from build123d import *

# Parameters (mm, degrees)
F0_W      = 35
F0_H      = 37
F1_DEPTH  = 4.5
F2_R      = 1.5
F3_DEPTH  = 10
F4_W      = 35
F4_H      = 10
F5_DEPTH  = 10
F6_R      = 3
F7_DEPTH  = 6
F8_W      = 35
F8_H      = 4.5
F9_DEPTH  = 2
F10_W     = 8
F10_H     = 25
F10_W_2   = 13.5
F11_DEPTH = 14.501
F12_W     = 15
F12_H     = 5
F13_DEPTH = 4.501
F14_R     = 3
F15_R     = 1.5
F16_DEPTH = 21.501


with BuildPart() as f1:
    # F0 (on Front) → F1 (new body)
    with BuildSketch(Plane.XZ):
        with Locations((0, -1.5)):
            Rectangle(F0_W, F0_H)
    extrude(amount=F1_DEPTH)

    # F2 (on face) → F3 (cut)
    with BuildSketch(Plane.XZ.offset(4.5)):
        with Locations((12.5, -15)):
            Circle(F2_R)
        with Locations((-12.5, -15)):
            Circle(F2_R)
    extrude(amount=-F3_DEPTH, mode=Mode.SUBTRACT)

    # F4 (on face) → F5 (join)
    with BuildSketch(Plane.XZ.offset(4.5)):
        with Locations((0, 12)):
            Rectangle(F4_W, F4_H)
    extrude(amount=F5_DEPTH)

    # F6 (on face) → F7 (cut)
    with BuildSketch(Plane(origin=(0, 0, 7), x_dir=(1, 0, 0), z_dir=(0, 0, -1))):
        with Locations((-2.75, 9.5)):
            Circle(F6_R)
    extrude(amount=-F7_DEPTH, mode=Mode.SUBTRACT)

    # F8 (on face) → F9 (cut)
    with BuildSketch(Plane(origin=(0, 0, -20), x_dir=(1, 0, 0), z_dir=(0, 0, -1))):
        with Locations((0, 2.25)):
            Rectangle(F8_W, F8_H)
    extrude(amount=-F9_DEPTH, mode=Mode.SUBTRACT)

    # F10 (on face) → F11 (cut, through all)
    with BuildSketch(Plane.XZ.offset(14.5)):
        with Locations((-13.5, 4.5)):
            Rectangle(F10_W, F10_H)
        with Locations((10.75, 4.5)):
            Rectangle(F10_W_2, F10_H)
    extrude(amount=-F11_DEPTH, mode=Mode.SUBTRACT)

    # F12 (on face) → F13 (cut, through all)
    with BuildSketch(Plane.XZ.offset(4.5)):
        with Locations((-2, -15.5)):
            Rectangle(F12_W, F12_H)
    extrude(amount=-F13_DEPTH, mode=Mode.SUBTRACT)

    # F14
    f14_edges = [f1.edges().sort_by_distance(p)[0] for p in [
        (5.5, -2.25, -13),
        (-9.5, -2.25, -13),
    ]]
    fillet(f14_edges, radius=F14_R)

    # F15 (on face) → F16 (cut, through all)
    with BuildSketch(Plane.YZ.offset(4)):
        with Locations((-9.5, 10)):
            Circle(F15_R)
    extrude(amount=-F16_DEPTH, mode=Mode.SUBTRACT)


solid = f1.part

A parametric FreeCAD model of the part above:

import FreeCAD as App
import Part
import Sketcher

V = App.Vector


def edges_at(feature, points):
    """Names of the edges that pass closest to the given points."""
    edges = feature.Shape.Edges
    near = lambda p: min(range(len(edges)), key=lambda i: edges[i].distToShape(Part.Vertex(*p))[0])
    return sorted({f"Edge{near(p) + 1}" for p in points})


def add_polygon(sketch, points):
    """Adds a closed chain of lines whose ends are joined by coincident constraints."""
    first, n = sketch.GeometryCount, len(points)
    for a, b in zip(points, points[1:] + points[:1]):
        sketch.addGeometry(Part.LineSegment(App.Vector(*a, 0), App.Vector(*b, 0)), False)
    for i in range(n):
        sketch.addConstraint(Sketcher.Constraint("Coincident", first + i, 2, first + (i + 1) % n, 1))

doc = App.newDocument("Part")
body = doc.addObject("PartDesign::Body", "Body")

# Sketch on XZ plane
sketch1 = body.newObject("Sketcher::SketchObject", "Sketch")
sketch1.AttachmentSupport = (doc.getObject("XZ_Plane"), [""])
sketch1.MapMode = "FlatFace"
add_polygon(sketch1, [(-18, 17), (-18, -20), (18, -20), (18, 17)])  # lines 0-3
sketch1.addConstraint(Sketcher.Constraint("Vertical", 0))
sketch1.addConstraint(Sketcher.Constraint("Horizontal", 1))
sketch1.addConstraint(Sketcher.Constraint("Vertical", 2))
sketch1.addConstraint(Sketcher.Constraint("Horizontal", 3))
sketch1.addConstraint(Sketcher.Constraint("DistanceX", 1, 1, 1, 2, 35.0))
sketch1.addConstraint(Sketcher.Constraint("DistanceY", 0, 2, 0, 1, 37.0))
sketch1.addConstraint(Sketcher.Constraint("DistanceY", 0, 2, -1, 1, 20.0))
sketch1.addConstraint(Sketcher.Constraint("DistanceX", 0, 2, -1, 1, 17.5))
pad1 = body.newObject("PartDesign::Pad", "Pad")
pad1.Profile = sketch1
pad1.Length = 4.5

# Sketch on XZ plane
sketch2 = body.newObject("Sketcher::SketchObject", "Sketch001")
sketch2.AttachmentSupport = (doc.getObject("XZ_Plane"), [""])
sketch2.MapMode = "FlatFace"
sketch2.AttachmentOffset = App.Placement(V(0, 0, 4.5), App.Rotation())
sketch2.addGeometry(Part.Circle(V(12.5, -15, 0), V(0, 0, 1), 1.5), False)
sketch2.addGeometry(Part.Circle(V(-12.5, -15, 0), V(0, 0, 1), 1.5), False)
sketch2.addConstraint(Sketcher.Constraint("Equal", 0, 1))
sketch2.addConstraint(Sketcher.Constraint("Symmetric", 0, 3, 1, 3, -2))
sketch2.addConstraint(Sketcher.Constraint("Diameter", 0, 3.0))
sketch2.addConstraint(Sketcher.Constraint("DistanceY", 0, 3, -1, 1, 15.0))
sketch2.addConstraint(Sketcher.Constraint("DistanceX", 1, 3, 0, 3, 25.0))
pocket1 = body.newObject("PartDesign::Pocket", "Pocket")
pocket1.Profile = sketch2
pocket1.Length = 10

# Sketch on XZ plane
sketch3 = body.newObject("Sketcher::SketchObject", "Sketch002")
sketch3.AttachmentSupport = (doc.getObject("XZ_Plane"), [""])
sketch3.MapMode = "FlatFace"
sketch3.AttachmentOffset = App.Placement(V(0, 0, 4.5), App.Rotation())
add_polygon(sketch3, [(-18, 17), (-18, 7), (18, 7), (18, 17)])  # lines 0-3
sketch3.addConstraint(Sketcher.Constraint("Vertical", 0))
sketch3.addConstraint(Sketcher.Constraint("Horizontal", 1))
sketch3.addConstraint(Sketcher.Constraint("Vertical", 2))
sketch3.addConstraint(Sketcher.Constraint("Horizontal", 3))
sketch3.addConstraint(Sketcher.Constraint("DistanceX", 1, 1, 1, 2, 35.0))
sketch3.addConstraint(Sketcher.Constraint("DistanceY", 0, 2, 0, 1, 10.0))
sketch3.addConstraint(Sketcher.Constraint("DistanceY", -1, 1, 0, 2, 7.0))
sketch3.addConstraint(Sketcher.Constraint("DistanceX", 0, 2, -1, 1, 17.5))
pad2 = body.newObject("PartDesign::Pad", "Pad001")
pad2.Profile = sketch3
pad2.Length = 10

# Sketch on XY plane
sketch4 = body.newObject("Sketcher::SketchObject", "Sketch003")
sketch4.AttachmentSupport = (doc.getObject("XY_Plane"), [""])
sketch4.MapMode = "FlatFace"
sketch4.AttachmentOffset = App.Placement(V(0, 0, 7), App.Rotation())
sketch4.addGeometry(Part.Circle(V(-2.8, -9.5, 0), V(0, 0, 1), 3), False)
sketch4.addConstraint(Sketcher.Constraint("Diameter", 0, 6.0))
sketch4.addConstraint(Sketcher.Constraint("DistanceY", 0, 3, -1, 1, 9.5))
sketch4.addConstraint(Sketcher.Constraint("DistanceX", 0, 3, -1, 1, 2.75))
pocket2 = body.newObject("PartDesign::Pocket", "Pocket001")
pocket2.Profile = sketch4
pocket2.Length = 6
pocket2.Reversed = True

# Sketch on XY plane
sketch5 = body.newObject("Sketcher::SketchObject", "Sketch004")
sketch5.AttachmentSupport = (doc.getObject("XY_Plane"), [""])
sketch5.MapMode = "FlatFace"
sketch5.AttachmentOffset = App.Placement(V(0, 0, -20), App.Rotation())
add_polygon(sketch5, [(-17.5, -4.5), (-17.5, 0), (17.5, 0), (17.5, -4.5)])  # lines 0-3
sketch5.addConstraint(Sketcher.Constraint("Vertical", 0))
sketch5.addConstraint(Sketcher.Constraint("Horizontal", 1))
sketch5.addConstraint(Sketcher.Constraint("Vertical", 2))
sketch5.addConstraint(Sketcher.Constraint("Horizontal", 3))
sketch5.addConstraint(Sketcher.Constraint("Symmetric", 0, 2, 1, 2, -1, 1))
sketch5.addConstraint(Sketcher.Constraint("DistanceX", 1, 1, 1, 2, 35.0))
sketch5.addConstraint(Sketcher.Constraint("DistanceY", 0, 1, 0, 2, 4.5))
pocket3 = body.newObject("PartDesign::Pocket", "Pocket002")
pocket3.Profile = sketch5
pocket3.Length = 2
pocket3.Reversed = True

# Sketch on XZ plane
sketch6 = body.newObject("Sketcher::SketchObject", "Sketch005")
sketch6.AttachmentSupport = (doc.getObject("XZ_Plane"), [""])
sketch6.MapMode = "FlatFace"
sketch6.AttachmentOffset = App.Placement(V(0, 0, 14.5), App.Rotation())
add_polygon(sketch6, [(-18, 17), (-18, -8), (-10, -8), (-10, 17)])  # lines 0-3
add_polygon(sketch6, [(4, 17), (4, -8), (18, -8), (18, 17)])  # lines 4-7
sketch6.addConstraint(Sketcher.Constraint("Vertical", 0))
sketch6.addConstraint(Sketcher.Constraint("Horizontal", 1))
sketch6.addConstraint(Sketcher.Constraint("Vertical", 2))
sketch6.addConstraint(Sketcher.Constraint("Horizontal", 3))
sketch6.addConstraint(Sketcher.Constraint("Vertical", 4))
sketch6.addConstraint(Sketcher.Constraint("Horizontal", 5))
sketch6.addConstraint(Sketcher.Constraint("Vertical", 6))
sketch6.addConstraint(Sketcher.Constraint("Horizontal", 7))
sketch6.addConstraint(Sketcher.Constraint("Symmetric", 0, 2, 5, 2, -2))
sketch6.addConstraint(Sketcher.Constraint("Horizontal", 3, 2, 6, 2))
sketch6.addConstraint(Sketcher.Constraint("DistanceX", 1, 1, 1, 2, 8.0))
sketch6.addConstraint(Sketcher.Constraint("DistanceY", 0, 2, 0, 1, 25.0))
sketch6.addConstraint(Sketcher.Constraint("DistanceX", 5, 1, 5, 2, 13.5))
sketch6.addConstraint(Sketcher.Constraint("DistanceY", 0, 2, -1, 1, 8.0))
sketch6.addConstraint(Sketcher.Constraint("DistanceX", -1, 1, 4, 2, 4.0))
pocket4 = body.newObject("PartDesign::Pocket", "Pocket003")
pocket4.Profile = sketch6
pocket4.Type = "ThroughAll"

# Sketch on XZ plane
sketch7 = body.newObject("Sketcher::SketchObject", "Sketch006")
sketch7.AttachmentSupport = (doc.getObject("XZ_Plane"), [""])
sketch7.MapMode = "FlatFace"
sketch7.AttachmentOffset = App.Placement(V(0, 0, 4.5), App.Rotation())
add_polygon(sketch7, [(-10, -13), (-10, -18), (6, -18), (6, -13)])  # lines 0-3
sketch7.addConstraint(Sketcher.Constraint("Vertical", 0))
sketch7.addConstraint(Sketcher.Constraint("Horizontal", 1))
sketch7.addConstraint(Sketcher.Constraint("Vertical", 2))
sketch7.addConstraint(Sketcher.Constraint("Horizontal", 3))
sketch7.addConstraint(Sketcher.Constraint("DistanceX", 1, 1, 1, 2, 15.0))
sketch7.addConstraint(Sketcher.Constraint("DistanceY", 0, 2, 0, 1, 5.0))
sketch7.addConstraint(Sketcher.Constraint("DistanceY", 0, 2, -1, 1, 18.0))
sketch7.addConstraint(Sketcher.Constraint("DistanceX", 0, 2, -1, 1, 9.5))
pocket5 = body.newObject("PartDesign::Pocket", "Pocket004")
pocket5.Profile = sketch7
pocket5.Type = "ThroughAll"
doc.recompute()

fillet = body.newObject("PartDesign::Fillet", "Fillet")
fillet.Base = (pocket5, edges_at(pocket5, [(5.5, -2.25, -13), (-9.5, -2.25, -13)]))
fillet.Radius = 3

# Sketch on YZ plane
sketch8 = body.newObject("Sketcher::SketchObject", "Sketch007")
sketch8.AttachmentSupport = (doc.getObject("YZ_Plane"), [""])
sketch8.MapMode = "FlatFace"
sketch8.AttachmentOffset = App.Placement(V(0, 0, 4), App.Rotation())
sketch8.addGeometry(Part.Circle(V(-9.5, 10, 0), V(0, 0, 1), 1.5), False)
sketch8.addConstraint(Sketcher.Constraint("Diameter", 0, 3.0))
sketch8.addConstraint(Sketcher.Constraint("DistanceY", -1, 1, 0, 3, 10.0))
sketch8.addConstraint(Sketcher.Constraint("DistanceX", 0, 3, -1, 1, 9.5))
pocket6 = body.newObject("PartDesign::Pocket", "Pocket005")
pocket6.Profile = sketch8
pocket6.Type = "ThroughAll"

doc.recompute()
